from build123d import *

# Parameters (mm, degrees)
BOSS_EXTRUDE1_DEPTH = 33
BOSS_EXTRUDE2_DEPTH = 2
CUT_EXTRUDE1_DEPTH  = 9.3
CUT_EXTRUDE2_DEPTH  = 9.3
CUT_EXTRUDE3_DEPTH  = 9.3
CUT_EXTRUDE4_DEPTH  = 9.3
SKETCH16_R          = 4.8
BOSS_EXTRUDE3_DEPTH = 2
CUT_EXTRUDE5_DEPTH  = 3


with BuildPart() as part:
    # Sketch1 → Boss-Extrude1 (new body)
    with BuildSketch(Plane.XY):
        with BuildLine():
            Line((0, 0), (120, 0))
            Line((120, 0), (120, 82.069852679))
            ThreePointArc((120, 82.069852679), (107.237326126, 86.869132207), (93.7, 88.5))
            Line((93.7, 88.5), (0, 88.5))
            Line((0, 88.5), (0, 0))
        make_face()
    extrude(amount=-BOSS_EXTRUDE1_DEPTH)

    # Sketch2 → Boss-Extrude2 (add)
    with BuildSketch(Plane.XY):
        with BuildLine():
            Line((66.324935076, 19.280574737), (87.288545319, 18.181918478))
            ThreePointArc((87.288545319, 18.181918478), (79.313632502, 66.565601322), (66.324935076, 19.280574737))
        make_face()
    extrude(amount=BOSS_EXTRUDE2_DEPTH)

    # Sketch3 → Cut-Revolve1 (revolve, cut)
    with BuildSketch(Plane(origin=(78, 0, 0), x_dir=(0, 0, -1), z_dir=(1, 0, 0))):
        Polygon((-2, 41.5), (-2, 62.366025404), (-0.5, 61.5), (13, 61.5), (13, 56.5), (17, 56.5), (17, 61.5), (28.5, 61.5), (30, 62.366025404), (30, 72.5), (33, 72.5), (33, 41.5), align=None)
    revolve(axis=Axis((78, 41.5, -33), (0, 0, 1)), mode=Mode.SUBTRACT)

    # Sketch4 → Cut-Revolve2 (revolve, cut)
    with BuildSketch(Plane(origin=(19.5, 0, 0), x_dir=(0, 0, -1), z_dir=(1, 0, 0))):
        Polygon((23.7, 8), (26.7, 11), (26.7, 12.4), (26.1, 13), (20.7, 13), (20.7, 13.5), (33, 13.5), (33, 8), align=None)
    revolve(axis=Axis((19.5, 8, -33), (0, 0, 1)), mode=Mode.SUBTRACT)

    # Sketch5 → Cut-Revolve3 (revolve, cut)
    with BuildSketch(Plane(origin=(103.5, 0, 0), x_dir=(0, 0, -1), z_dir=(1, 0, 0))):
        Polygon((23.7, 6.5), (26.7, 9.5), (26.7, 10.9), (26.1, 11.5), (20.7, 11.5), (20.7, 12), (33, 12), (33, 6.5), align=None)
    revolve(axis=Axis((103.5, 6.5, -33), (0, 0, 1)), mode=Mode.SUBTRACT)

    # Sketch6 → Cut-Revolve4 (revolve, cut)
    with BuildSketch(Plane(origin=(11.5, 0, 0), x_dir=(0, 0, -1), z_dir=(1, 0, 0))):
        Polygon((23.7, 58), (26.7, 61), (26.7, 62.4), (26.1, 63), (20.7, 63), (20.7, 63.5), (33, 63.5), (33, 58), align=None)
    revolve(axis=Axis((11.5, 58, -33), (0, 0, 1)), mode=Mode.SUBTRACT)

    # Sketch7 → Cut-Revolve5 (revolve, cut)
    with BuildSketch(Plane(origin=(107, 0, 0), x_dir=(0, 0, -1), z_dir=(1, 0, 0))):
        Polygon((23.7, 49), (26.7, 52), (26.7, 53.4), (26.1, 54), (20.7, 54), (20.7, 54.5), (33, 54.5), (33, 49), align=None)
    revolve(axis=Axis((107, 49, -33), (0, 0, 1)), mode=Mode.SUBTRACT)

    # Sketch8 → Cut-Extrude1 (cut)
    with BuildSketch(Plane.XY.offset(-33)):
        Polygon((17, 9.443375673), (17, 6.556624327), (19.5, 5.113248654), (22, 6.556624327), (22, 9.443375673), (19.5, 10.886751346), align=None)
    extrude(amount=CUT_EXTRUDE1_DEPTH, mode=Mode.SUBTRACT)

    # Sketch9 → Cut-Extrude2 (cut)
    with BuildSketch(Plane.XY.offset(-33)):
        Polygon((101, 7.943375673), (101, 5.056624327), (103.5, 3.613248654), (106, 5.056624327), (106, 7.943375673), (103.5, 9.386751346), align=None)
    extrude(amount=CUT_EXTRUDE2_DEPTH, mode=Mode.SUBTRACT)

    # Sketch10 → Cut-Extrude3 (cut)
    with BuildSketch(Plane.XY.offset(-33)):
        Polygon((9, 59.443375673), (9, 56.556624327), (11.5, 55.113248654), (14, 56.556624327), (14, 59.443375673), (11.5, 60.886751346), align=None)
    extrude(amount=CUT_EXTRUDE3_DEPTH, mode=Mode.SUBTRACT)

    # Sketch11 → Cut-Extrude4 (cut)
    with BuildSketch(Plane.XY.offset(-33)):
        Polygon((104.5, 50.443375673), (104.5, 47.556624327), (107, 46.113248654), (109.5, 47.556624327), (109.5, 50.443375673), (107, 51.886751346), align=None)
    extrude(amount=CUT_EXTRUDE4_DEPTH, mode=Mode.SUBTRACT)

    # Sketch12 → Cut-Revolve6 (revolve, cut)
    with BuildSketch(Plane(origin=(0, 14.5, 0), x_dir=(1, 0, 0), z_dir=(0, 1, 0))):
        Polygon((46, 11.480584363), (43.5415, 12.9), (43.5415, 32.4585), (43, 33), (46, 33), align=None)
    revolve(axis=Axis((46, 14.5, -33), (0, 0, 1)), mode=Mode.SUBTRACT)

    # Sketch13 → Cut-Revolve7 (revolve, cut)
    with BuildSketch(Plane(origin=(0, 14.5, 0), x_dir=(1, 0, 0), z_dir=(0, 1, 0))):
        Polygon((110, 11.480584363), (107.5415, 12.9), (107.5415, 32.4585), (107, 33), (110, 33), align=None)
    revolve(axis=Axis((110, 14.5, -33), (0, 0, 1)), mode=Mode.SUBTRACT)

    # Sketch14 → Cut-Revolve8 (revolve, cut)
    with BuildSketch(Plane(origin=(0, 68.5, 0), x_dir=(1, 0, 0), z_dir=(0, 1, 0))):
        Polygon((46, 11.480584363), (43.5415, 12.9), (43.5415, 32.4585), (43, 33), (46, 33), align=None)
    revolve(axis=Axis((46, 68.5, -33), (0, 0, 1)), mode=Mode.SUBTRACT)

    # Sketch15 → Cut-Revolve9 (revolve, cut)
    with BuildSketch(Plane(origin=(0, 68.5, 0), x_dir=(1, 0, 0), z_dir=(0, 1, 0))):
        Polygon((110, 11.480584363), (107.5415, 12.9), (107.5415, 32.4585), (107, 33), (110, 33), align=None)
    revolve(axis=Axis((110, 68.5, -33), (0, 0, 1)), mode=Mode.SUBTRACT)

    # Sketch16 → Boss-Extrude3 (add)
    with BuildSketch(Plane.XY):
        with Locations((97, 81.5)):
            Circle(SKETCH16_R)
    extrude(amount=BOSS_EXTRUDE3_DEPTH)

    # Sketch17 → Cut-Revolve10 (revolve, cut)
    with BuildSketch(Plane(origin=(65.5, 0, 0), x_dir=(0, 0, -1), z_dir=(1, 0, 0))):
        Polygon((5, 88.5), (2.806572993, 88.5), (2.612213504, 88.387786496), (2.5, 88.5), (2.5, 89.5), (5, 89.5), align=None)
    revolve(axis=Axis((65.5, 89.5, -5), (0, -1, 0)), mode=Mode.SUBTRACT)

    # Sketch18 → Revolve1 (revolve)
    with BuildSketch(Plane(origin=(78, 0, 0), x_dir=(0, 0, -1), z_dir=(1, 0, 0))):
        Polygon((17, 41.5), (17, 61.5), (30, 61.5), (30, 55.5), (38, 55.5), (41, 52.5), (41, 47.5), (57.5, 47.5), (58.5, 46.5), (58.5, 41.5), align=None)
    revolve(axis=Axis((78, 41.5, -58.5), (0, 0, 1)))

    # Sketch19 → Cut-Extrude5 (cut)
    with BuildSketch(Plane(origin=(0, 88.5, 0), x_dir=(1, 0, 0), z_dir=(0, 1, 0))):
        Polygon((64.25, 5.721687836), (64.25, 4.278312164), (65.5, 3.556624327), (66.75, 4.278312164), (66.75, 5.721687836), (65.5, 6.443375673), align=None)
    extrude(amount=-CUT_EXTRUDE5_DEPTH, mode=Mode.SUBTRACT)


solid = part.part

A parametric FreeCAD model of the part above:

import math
import FreeCAD as App
import Part
import Sketcher
from FreeCAD import Vector
Q = App.Units.Quantity


def add_polygon(sketch, points):
    """Adds a closed chain of lines whose ends are joined by coincident constraints."""
    first, n = sketch.GeometryCount, len(points)
    for a, b in zip(points, points[1:] + points[:1]):
        sketch.addGeometry(Part.LineSegment(App.Vector(*a, 0), App.Vector(*b, 0)), False)
    for i in range(n):
        sketch.addConstraint(Sketcher.Constraint("Coincident", first + i, 2, first + (i + 1) % n, 1))

doc = App.newDocument("Part")
params = doc.addObject("Spreadsheet::Sheet", "Params")
for row, (alias, value) in enumerate([
    ("sketch1_radius", "57 mm"),
    ("sketch1_width", "120 mm"),
    ("sketch1_width2", "93.7 mm"),
    ("sketch1_height", "88.5 mm"),
    ("pad1_length", "33 mm"),
    ("sketch2_radius", "25.1 mm"),
    ("pad2_length", "2 mm"),
    ("sketch3_width", "31 mm"),
    ("sketch3_width2", "5 mm"),
    ("sketch3_height", "35 mm"),
    ("sketch3_height2", "3 mm"),
    ("sketch3_height3", "4 mm"),
    ("groove_angle", "360 deg"),
    ("sketch4_width", "5.5 mm"),
    ("sketch4_width2", "0.5 mm"),
    ("sketch4_width3", "1.4 mm"),
    ("sketch4_height", "9.3 mm"),
    ("sketch4_height2", "12.3 mm"),
    ("groove2_angle", "360 deg"),
    ("sketch5_width", "5.5 mm"),
    ("sketch5_width2", "0.5 mm"),
    ("sketch5_width3", "1.4 mm"),
    ("sketch5_height", "9.3 mm"),
    ("sketch5_height2", "12.3 mm"),
    ("groove3_angle", "360 deg"),
    ("sketch6_width", "5.5 mm"),
    ("sketch6_width2", "0.5 mm"),
    ("sketch6_width3", "1.4 mm"),
    ("sketch6_height", "9.3 mm"),
    ("sketch6_height2", "12.3 mm"),
    ("groove4_angle", "360 deg"),
    ("sketch7_width", "5.5 mm"),
    ("sketch7_width2", "0.5 mm"),
    ("sketch7_width3", "1.4 mm"),
    ("sketch7_height", "9.3 mm"),
    ("sketch7_height2", "12.3 mm"),
    ("groove5_angle", "360 deg"),
    ("pocket1_length", "9.3 mm"),
    ("pocket2_length", "9.3 mm"),
    ("pocket3_length", "9.3 mm"),
    ("pocket4_length", "9.3 mm"),
    ("sketch12_width", "3 mm"),
    ("groove6_angle", "360 deg"),
    ("sketch13_width", "3 mm"),
    ("groove7_angle", "360 deg"),
    ("sketch14_width", "3 mm"),
    ("groove8_angle", "360 deg"),
    ("sketch15_width", "3 mm"),
    ("groove9_angle", "360 deg"),
    ("sketch16_diameter", "9.6 mm"),
    ("pad3_length", "2 mm"),
    ("sketch17_width", "1 mm"),
    ("sketch17_height", "2.5 mm"),
    ("groove10_angle", "360 deg"),
    ("sketch18_width", "20 mm"),
    ("sketch18_width2", "5 mm"),
    ("sketch18_width3", "6 mm"),
    ("sketch18_height", "8 mm"),
    ("sketch18_height2", "13 mm"),
    ("revolution_angle", "360 deg"),
    ("pocket5_length", "3 mm"),
], start=1):
    params.set(f"A{row}", alias)
    params.set(f"B{row}", "=" + value)
    params.setAlias(f"B{row}", alias)

body = doc.addObject("PartDesign::Body", "Body")

sketch1 = body.newObject("Sketcher::SketchObject", "Sketch")
sketch1.AttachmentSupport = (doc.getObject("XY_Plane"), [""])
sketch1.MapMode = "FlatFace"
sketch1.addGeometry(Part.LineSegment(Vector(0, 0, 0), Vector(120, 0, 0)), False)
sketch1.addGeometry(Part.LineSegment(Vector(120, 0, 0), Vector(120, 82, 0)), False)
sketch1.addGeometry(Part.ArcOfCircle(Part.Circle(Vector(94, 32, 0), Vector(0, 0, 1), 57), math.radians(63), math.radians(90)), False)
sketch1.addGeometry(Part.LineSegment(Vector(94, 88, 0), Vector(0, 88, 0)), False)
sketch1.addGeometry(Part.LineSegment(Vector(0, 88, 0), Vector(0, 0, 0)), False)
sketch1.addConstraint(Sketcher.Constraint("Coincident", 0, 2, 1, 1))
sketch1.addConstraint(Sketcher.Constraint("Coincident", 1, 2, 2, 1))
sketch1.addConstraint(Sketcher.Constraint("Tangent", 2, 2, 3, 1))
sketch1.addConstraint(Sketcher.Constraint("Coincident", 3, 2, 4, 1))
sketch1.addConstraint(Sketcher.Constraint("Coincident", 4, 2, 0, 1))
sketch1.addConstraint(Sketcher.Constraint("Horizontal", 0))
sketch1.addConstraint(Sketcher.Constraint("Vertical", 1))
sketch1.addConstraint(Sketcher.Constraint("Horizontal", 3))
sketch1.addConstraint(Sketcher.Constraint("Vertical", 4))
sketch1.addConstraint(Sketcher.Constraint("Coincident", 4, 2, -1, 1))
sketch1.addConstraint(Sketcher.Constraint("Radius", 2, 57.0))
sketch1.addConstraint(Sketcher.Constraint("DistanceX", 0, 1, 0, 2, 120.0))
sketch1.addConstraint(Sketcher.Constraint("DistanceX", 3, 2, 3, 1, 93.7))
sketch1.addConstraint(Sketcher.Constraint("DistanceY", 4, 2, 4, 1, 88.5))
sketch1.setExpression("Constraints[10]", "Params.sketch1_radius")
sketch1.setExpression("Constraints[11]", "Params.sketch1_width")
sketch1.setExpression("Constraints[12]", "Params.sketch1_width2")
sketch1.setExpression("Constraints[13]", "Params.sketch1_height")
pad1 = body.newObject("PartDesign::Pad", "Pad")
pad1.Profile = sketch1
pad1.setExpression("Length", "Params.pad1_length")
pad1.Reversed = True

sketch2 = body.newObject("Sketcher::SketchObject", "Sketch001")
sketch2.AttachmentSupport = (doc.getObject("XY_Plane"), [""])
sketch2.MapMode = "FlatFace"
sketch2.addGeometry(Part.LineSegment(Vector(66, 19, 0), Vector(87, 18, 0)), False)
sketch2.addGeometry(Part.ArcOfCircle(Part.Circle(Vector(78, 42, 0), Vector(0, 0, 1), 25), math.radians(-68), math.radians(242)), False)
sketch2.addConstraint(Sketcher.Constraint("Coincident", 0, 1, 1, 2))
sketch2.addConstraint(Sketcher.Constraint("Coincident", 1, 1, 0, 2))
sketch2.addConstraint(Sketcher.Constraint("Radius", 1, 25.1))
sketch2.addConstraint(Sketcher.Constraint("Angle", 0, Q("-3 deg")))
sketch2.addConstraint(Sketcher.Constraint("DistanceX", -1, 1, 1, 3, 78.0))
sketch2.addConstraint(Sketcher.Constraint("DistanceY", -1, 1, 1, 3, 41.5))
sketch2.addConstraint(Sketcher.Constraint("Distance", 0, 20.99238))
sketch2.setExpression("Constraints[2]", "Params.sketch2_radius")
pad2 = body.newObject("PartDesign::Pad", "Pad001")
pad2.Profile = sketch2
pad2.setExpression("Length", "Params.pad2_length")

sketch3 = body.newObject("Sketcher::SketchObject", "Sketch002")
sketch3.AttachmentSupport = (doc.getObject("YZ_Plane"), [""])
sketch3.MapMode = "FlatFace"
sketch3.AttachmentOffset = App.Placement(Vector(0, 0, 78), App.Rotation())
add_polygon(sketch3, [(62.4, 2), (41.5, 2), (41.5, -33), (72.5, -33), (72.5, -30), (62.4, -30), (61.5, -28.5), (61.5, -17), (56.5, -17), (56.5, -13), (61.5, -13), (61.5, 0.5)])
sketch3.addGeometry(Part.LineSegment(Vector(41.5, -33, 0), Vector(41.5, 2, 0)), True)
sketch3.addConstraint(Sketcher.Constraint("Horizontal", 0))
sketch3.addConstraint(Sketcher.Constraint("Vertical", 1))
sketch3.addConstraint(Sketcher.Constraint("Horizontal", 2))
sketch3.addConstraint(Sketcher.Constraint("Vertical", 3))
sketch3.addConstraint(Sketcher.Constraint("Horizontal", 4))
sketch3.addConstraint(Sketcher.Constraint("Vertical", 6))
sketch3.addConstraint(Sketcher.Constraint("Horizontal", 7))
sketch3.addConstraint(Sketcher.Constraint("Vertical", 8))
sketch3.addConstraint(Sketcher.Constraint("Horizontal", 9))
sketch3.addConstraint(Sketcher.Constraint("Vertical", 10))
sketch3.addConstraint(Sketcher.Constraint("Vertical", 12))
sketch3.addConstraint(Sketcher.Constraint("Coincident", 12, 1, 1, 2))
sketch3.addConstraint(Sketcher.Constraint("Horizontal", 11, 2, 12, 2))
sketch3.addConstraint(Sketcher.Constraint("Vertical", 6, 2, 9, 2))
sketch3.addConstraint(Sketcher.Constraint("Vertical", 4, 2, 11, 2))
sketch3.addConstraint(Sketcher.Constraint("Equal", 5, 11))
sketch3.addConstraint(Sketcher.Constraint("DistanceX", 2, 1, 2, 2, 31.0))
sketch3.addConstraint(Sketcher.Constraint("DistanceX", 7, 2, 7, 1, 5.0))
sketch3.addConstraint(Sketcher.Constraint("DistanceY", 1, 2, 1, 1, 35.0))
sketch3.addConstraint(Sketcher.Constraint("DistanceY", 3, 1, 3, 2, 3.0))
sketch3.addConstraint(Sketcher.Constraint("DistanceY", 8, 1, 8, 2, 4.0))
sketch3.addConstraint(Sketcher.Constraint("Angle", 5, Q("120 deg")))
sketch3.addConstraint(Sketcher.Constraint("DistanceY", 6, 1, 6, 2, 11.5))
sketch3.addConstraint(Sketcher.Constraint("DistanceY", 10, 1, 10, 2, 13.5))
sketch3.addConstraint(Sketcher.Constraint("DistanceY", -1, 1, 0, 2, 2.0))
sketch3.addConstraint(Sketcher.Constraint("DistanceX", 5, 2, 3, 2, 11.0))
sketch3.addConstraint(Sketcher.Constraint("DistanceX", -1, 1, 0, 2, 41.5))
sketch3.setExpression("Constraints[28]", "Params.sketch3_width")
sketch3.setExpression("Constraints[29]", "Params.sketch3_width2")
sketch3.setExpression("Constraints[30]", "Params.sketch3_height")
sketch3.setExpression("Constraints[31]", "Params.sketch3_height2")
sketch3.setExpression("Constraints[32]", "Params.sketch3_height3")
groove = body.newObject("PartDesign::Groove", "Groove")
groove.Profile = sketch3
groove.ReferenceAxis = (sketch3, ["Axis0"])
groove.setExpression("Angle", "Params.groove_angle")

sketch4 = body.newObject("Sketcher::SketchObject", "Sketch003")
sketch4.AttachmentSupport = (doc.getObject("YZ_Plane"), [""])
sketch4.MapMode = "FlatFace"
sketch4.AttachmentOffset = App.Placement(Vector(0, 0, 19.5), App.Rotation())
add_polygon(sketch4, [(11, -26.7), (8, -23.7), (8, -33), (13.5, -33), (13.5, -20.7), (13, -20.7), (13, -26.1), (12.4, -26.7)])
sketch4.addGeometry(Part.LineSegment(Vector(8, -33, 0), Vector(8, -20.7, 0)), True)
sketch4.addConstraint(Sketcher.Constraint("Vertical", 1))
sketch4.addConstraint(Sketcher.Constraint("Horizontal", 2))
sketch4.addConstraint(Sketcher.Constraint("Vertical", 3))
sketch4.addConstraint(Sketcher.Constraint("Horizontal", 4))
sketch4.addConstraint(Sketcher.Constraint("Vertical", 5))
sketch4.addConstraint(Sketcher.Constraint("Horizontal", 7))
sketch4.addConstraint(Sketcher.Constraint("Vertical", 8))
sketch4.addConstraint(Sketcher.Constraint("Coincident", 8, 1, 1, 2))
sketch4.addConstraint(Sketcher.Constraint("Perpendicular", 0, 6))
sketch4.addConstraint(Sketcher.Constraint("Horizontal", 4, 2, 8, 2))
sketch4.addConstraint(Sketcher.Constraint("Angle", 0, Q("135 deg")))
sketch4.addConstraint(Sketcher.Constraint("DistanceX", 2, 1, 2, 2, 5.5))
sketch4.addConstraint(Sketcher.Constraint("DistanceX", 4, 2, 4, 1, 0.5))
sketch4.addConstraint(Sketcher.Constraint("DistanceX", 7, 2, 7, 1, 1.4))
sketch4.addConstraint(Sketcher.Constraint("DistanceY", 1, 2, 1, 1, 9.3))
sketch4.addConstraint(Sketcher.Constraint("DistanceY", 3, 1, 3, 2, 12.3))
sketch4.addConstraint(Sketcher.Constraint("DistanceY", 5, 2, 5, 1, 5.4))
sketch4.addConstraint(Sketcher.Constraint("DistanceX", -1, 1, 0, 2, 8.0))
sketch4.addConstraint(Sketcher.Constraint("DistanceY", 1, 2, -1, 1, 33.0))
sketch4.setExpression("Constraints[19]", "Params.sketch4_width")
sketch4.setExpression("Constraints[20]", "Params.sketch4_width2")
sketch4.setExpression("Constraints[21]", "Params.sketch4_width3")
sketch4.setExpression("Constraints[22]", "Params.sketch4_height")
sketch4.setExpression("Constraints[23]", "Params.sketch4_height2")
groove2 = body.newObject("PartDesign::Groove", "Groove001")
groove2.Profile = sketch4
groove2.ReferenceAxis = (sketch4, ["Axis0"])
groove2.setExpression("Angle", "Params.groove2_angle")

sketch5 = body.newObject("Sketcher::SketchObject", "Sketch004")
sketch5.AttachmentSupport = (doc.getObject("YZ_Plane"), [""])
sketch5.MapMode = "FlatFace"
sketch5.AttachmentOffset = App.Placement(Vector(0, 0, 103.5), App.Rotation())
add_polygon(sketch5, [(9.5, -26.7), (6.5, -23.7), (6.5, -33), (12, -33), (12, -20.7), (11.5, -20.7), (11.5, -26.1), (10.9, -26.7)])
sketch5.addGeometry(Part.LineSegment(Vector(6.5, -33, 0), Vector(6.5, -20.7, 0)), True)
sketch5.addConstraint(Sketcher.Constraint("Vertical", 1))
sketch5.addConstraint(Sketcher.Constraint("Horizontal", 2))
sketch5.addConstraint(Sketcher.Constraint("Vertical", 3))
sketch5.addConstraint(Sketcher.Constraint("Horizontal", 4))
sketch5.addConstraint(Sketcher.Constraint("Vertical", 5))
sketch5.addConstraint(Sketcher.Constraint("Horizontal", 7))
sketch5.addConstraint(Sketcher.Constraint("Vertical", 8))
sketch5.addConstraint(Sketcher.Constraint("Coincident", 8, 1, 1, 2))
sketch5.addConstraint(Sketcher.Constraint("Perpendicular", 0, 6))
sketch5.addConstraint(Sketcher.Constraint("Horizontal", 4, 2, 8, 2))
sketch5.addConstraint(Sketcher.Constraint("Angle", 0, Q("135 deg")))
sketch5.addConstraint(Sketcher.Constraint("DistanceX", 2, 1, 2, 2, 5.5))
sketch5.addConstraint(Sketcher.Constraint("DistanceX", 4, 2, 4, 1, 0.5))
sketch5.addConstraint(Sketcher.Constraint("DistanceX", 7, 2, 7, 1, 1.4))
sketch5.addConstraint(Sketcher.Constraint("DistanceY", 1, 2, 1, 1, 9.3))
sketch5.addConstraint(Sketcher.Constraint("DistanceY", 3, 1, 3, 2, 12.3))
sketch5.addConstraint(Sketcher.Constraint("DistanceY", 5, 2, 5, 1, 5.4))
sketch5.addConstraint(Sketcher.Constraint("DistanceY", 1, 2, -1, 1, 33.0))
sketch5.addConstraint(Sketcher.Constraint("DistanceX", -1, 1, 2, 2, 12.0))
sketch5.setExpression("Constraints[19]", "Params.sketch5_width")
sketch5.setExpression("Constraints[20]", "Params.sketch5_width2")
sketch5.setExpression("Constraints[21]", "Params.sketch5_width3")
sketch5.setExpression("Constraints[22]", "Params.sketch5_height")
sketch5.setExpression("Constraints[23]", "Params.sketch5_height2")
groove3 = body.newObject("PartDesign::Groove", "Groove002")
groove3.Profile = sketch5
groove3.ReferenceAxis = (sketch5, ["Axis0"])
groove3.setExpression("Angle", "Params.groove3_angle")

sketch6 = body.newObject("Sketcher::SketchObject", "Sketch005")
sketch6.AttachmentSupport = (doc.getObject("YZ_Plane"), [""])
sketch6.MapMode = "FlatFace"
sketch6.AttachmentOffset = App.Placement(Vector(0, 0, 11.5), App.Rotation())
add_polygon(sketch6, [(61, -26.7), (58, -23.7), (58, -33), (63.5, -33), (63.5, -20.7), (63, -20.7), (63, -26.1), (62.4, -26.7)])
sketch6.addGeometry(Part.LineSegment(Vector(58, -33, 0), Vector(58, -20.7, 0)), True)
sketch6.addConstraint(Sketcher.Constraint("Vertical", 1))
sketch6.addConstraint(Sketcher.Constraint("Horizontal", 2))
sketch6.addConstraint(Sketcher.Constraint("Vertical", 3))
sketch6.addConstraint(Sketcher.Constraint("Horizontal", 4))
sketch6.addConstraint(Sketcher.Constraint("Vertical", 5))
sketch6.addConstraint(Sketcher.Constraint("Horizontal", 7))
sketch6.addConstraint(Sketcher.Constraint("Vertical", 8))
sketch6.addConstraint(Sketcher.Constraint("Coincident", 8, 1, 1, 2))
sketch6.addConstraint(Sketcher.Constraint("Perpendicular", 0, 6))
sketch6.addConstraint(Sketcher.Constraint("Horizontal", 4, 2, 8, 2))
sketch6.addConstraint(Sketcher.Constraint("Angle", 0, Q("135 deg")))
sketch6.addConstraint(Sketcher.Constraint("DistanceX", 2, 1, 2, 2, 5.5))
sketch6.addConstraint(Sketcher.Constraint("DistanceX", 4, 2, 4, 1, 0.5))
sketch6.addConstraint(Sketcher.Constraint("DistanceX", 7, 2, 7, 1, 1.4))
sketch6.addConstraint(Sketcher.Constraint("DistanceY", 1, 2, 1, 1, 9.3))
sketch6.addConstraint(Sketcher.Constraint("DistanceY", 3, 1, 3, 2, 12.3))
sketch6.addConstraint(Sketcher.Constraint("DistanceY", 5, 2, 5, 1, 5.4))
sketch6.addConstraint(Sketcher.Constraint("DistanceX", -1, 1, 0, 2, 58.0))
sketch6.addConstraint(Sketcher.Constraint("DistanceY", 1, 2, -1, 1, 33.0))
sketch6.setExpression("Constraints[19]", "Params.sketch6_width")
sketch6.setExpression("Constraints[20]", "Params.sketch6_width2")
sketch6.setExpression("Constraints[21]", "Params.sketch6_width3")
sketch6.setExpression("Constraints[22]", "Params.sketch6_height")
sketch6.setExpression("Constraints[23]", "Params.sketch6_height2")
groove4 = body.newObject("PartDesign::Groove", "Groove003")
groove4.Profile = sketch6
groove4.ReferenceAxis = (sketch6, ["Axis0"])
groove4.setExpression("Angle", "Params.groove4_angle")

sketch7 = body.newObject("Sketcher::SketchObject", "Sketch006")
sketch7.AttachmentSupport = (doc.getObject("YZ_Plane"), [""])
sketch7.MapMode = "FlatFace"
sketch7.AttachmentOffset = App.Placement(Vector(0, 0, 107), App.Rotation())
add_polygon(sketch7, [(52, -26.7), (49, -23.7), (49, -33), (54.5, -33), (54.5, -20.7), (54, -20.7), (54, -26.1), (53.4, -26.7)])
sketch7.addGeometry(Part.LineSegment(Vector(49, -33, 0), Vector(49, -20.7, 0)), True)
sketch7.addConstraint(Sketcher.Constraint("Vertical", 1))
sketch7.addConstraint(Sketcher.Constraint("Horizontal", 2))
sketch7.addConstraint(Sketcher.Constraint("Vertical", 3))
sketch7.addConstraint(Sketcher.Constraint("Horizontal", 4))
sketch7.addConstraint(Sketcher.Constraint("Vertical", 5))
sketch7.addConstraint(Sketcher.Constraint("Horizontal", 7))
sketch7.addConstraint(Sketcher.Constraint("Vertical", 8))
sketch7.addConstraint(Sketcher.Constraint("Coincident", 8, 1, 1, 2))
sketch7.addConstraint(Sketcher.Constraint("Perpendicular", 0, 6))
sketch7.addConstraint(Sketcher.Constraint("Horizontal", 4, 2, 8, 2))
sketch7.addConstraint(Sketcher.Constraint("Angle", 0, Q("135 deg")))
sketch7.addConstraint(Sketcher.Constraint("DistanceX", 2, 1, 2, 2, 5.5))
sketch7.addConstraint(Sketcher.Constraint("DistanceX", 4, 2, 4, 1, 0.5))
sketch7.addConstraint(Sketcher.Constraint("DistanceX", 7, 2, 7, 1, 1.4))
sketch7.addConstraint(Sketcher.Constraint("DistanceY", 1, 2, 1, 1, 9.3))
sketch7.addConstraint(Sketcher.Constraint("DistanceY", 3, 1, 3, 2, 12.3))
sketch7.addConstraint(Sketcher.Constraint("DistanceY", 5, 2, 5, 1, 5.4))
sketch7.addConstraint(Sketcher.Constraint("DistanceX", -1, 1, 0, 2, 49.0))
sketch7.addConstraint(Sketcher.Constraint("DistanceY", 1, 2, -1, 1, 33.0))
sketch7.setExpression("Constraints[19]", "Params.sketch7_width")
sketch7.setExpression("Constraints[20]", "Params.sketch7_width2")
sketch7.setExpression("Constraints[21]", "Params.sketch7_width3")
sketch7.setExpression("Constraints[22]", "Params.sketch7_height")
sketch7.setExpression("Constraints[23]", "Params.sketch7_height2")
groove5 = body.newObject("PartDesign::Groove", "Groove004")
groove5.Profile = sketch7
groove5.ReferenceAxis = (sketch7, ["Axis0"])
groove5.setExpression("Angle", "Params.groove5_angle")

sketch8 = body.newObject("Sketcher::SketchObject", "Sketch007")
sketch8.AttachmentSupport = (doc.getObject("XY_Plane"), [""])
sketch8.MapMode = "FlatFace"
sketch8.AttachmentOffset = App.Placement(Vector(0, 0, -33), App.Rotation())
add_polygon(sketch8, [(17, 9.4), (17, 6.6), (19.5, 5.1), (22, 6.6), (22, 9.4), (19.5, 10.9)])
sketch8.addConstraint(Sketcher.Constraint("Vertical", 0))
sketch8.addConstraint(Sketcher.Constraint("Vertical", 3))
sketch8.addConstraint(Sketcher.Constraint("Parallel", 1, 4))
sketch8.addConstraint(Sketcher.Constraint("Parallel", 2, 5))
sketch8.addConstraint(Sketcher.Constraint("Horizontal", 0, 2, 2, 2))
sketch8.addConstraint(Sketcher.Constraint("Horizontal", 3, 2, 5, 2))
sketch8.addConstraint(Sketcher.Constraint("Vertical", 1, 2, 4, 2))
sketch8.addConstraint(Sketcher.Constraint("Angle", 1, Q("-30 deg")))
sketch8.addConstraint(Sketcher.Constraint("DistanceX", -1, 1, 0, 2, 17.0))
sketch8.addConstraint(Sketcher.Constraint("DistanceX", -1, 1, 2, 2, 22.0))
sketch8.addConstraint(Sketcher.Constraint("DistanceY", 0, 2, 0, 1, 2.886751))
sketch8.addConstraint(Sketcher.Constraint("DistanceY", -1, 1, 1, 2, 5.113249))
pocket1 = body.newObject("PartDesign::Pocket", "Pocket")
pocket1.Profile = sketch8
pocket1.setExpression("Length", "Params.pocket1_length")
pocket1.Reversed = True

sketch9 = body.newObject("Sketcher::SketchObject", "Sketch008")
sketch9.AttachmentSupport = (doc.getObject("XY_Plane"), [""])
sketch9.MapMode = "FlatFace"
sketch9.AttachmentOffset = App.Placement(Vector(0, 0, -33), App.Rotation())
add_polygon(sketch9, [(101, 7.9), (101, 5.1), (103.5, 3.6), (106, 5.1), (106, 7.9), (103.5, 9.4)])
sketch9.addConstraint(Sketcher.Constraint("Vertical", 0))
sketch9.addConstraint(Sketcher.Constraint("Vertical", 3))
sketch9.addConstraint(Sketcher.Constraint("Parallel", 1, 4))
sketch9.addConstraint(Sketcher.Constraint("Parallel", 2, 5))
sketch9.addConstraint(Sketcher.Constraint("Horizontal", 0, 2, 2, 2))
sketch9.addConstraint(Sketcher.Constraint("Horizontal", 3, 2, 5, 2))
sketch9.addConstraint(Sketcher.Constraint("Vertical", 1, 2, 4, 2))
sketch9.addConstraint(Sketcher.Constraint("Angle", 1, Q("-30 deg")))
sketch9.addConstraint(Sketcher.Constraint("DistanceX", -1, 1, 0, 2, 101.0))
sketch9.addConstraint(Sketcher.Constraint("DistanceX", -1, 1, 2, 2, 106.0))
sketch9.addConstraint(Sketcher.Constraint("DistanceY", 0, 2, 0, 1, 2.886751))
sketch9.addConstraint(Sketcher.Constraint("DistanceY", -1, 1, 1, 2, 3.613249))
pocket2 = body.newObject("PartDesign::Pocket", "Pocket001")
pocket2.Profile = sketch9
pocket2.setExpression("Length", "Params.pocket2_length")
pocket2.Reversed = True

sketch10 = body.newObject("Sketcher::SketchObject", "Sketch009")
sketch10.AttachmentSupport = (doc.getObject("XY_Plane"), [""])
sketch10.MapMode = "FlatFace"
sketch10.AttachmentOffset = App.Placement(Vector(0, 0, -33), App.Rotation())
add_polygon(sketch10, [(9, 59.4), (9, 56.6), (11.5, 55.1), (14, 56.6), (14, 59.4), (11.5, 60.9)])
sketch10.addConstraint(Sketcher.Constraint("Vertical", 0))
sketch10.addConstraint(Sketcher.Constraint("Vertical", 3))
sketch10.addConstraint(Sketcher.Constraint("Parallel", 1, 4))
sketch10.addConstraint(Sketcher.Constraint("Parallel", 2, 5))
sketch10.addConstraint(Sketcher.Constraint("Horizontal", 0, 2, 2, 2))
sketch10.addConstraint(Sketcher.Constraint("Horizontal", 3, 2, 5, 2))
sketch10.addConstraint(Sketcher.Constraint("Vertical", 1, 2, 4, 2))
sketch10.addConstraint(Sketcher.Constraint("Angle", 1, Q("-30 deg")))
sketch10.addConstraint(Sketcher.Constraint("DistanceX", -1, 1, 0, 2, 9.0))
sketch10.addConstraint(Sketcher.Constraint("DistanceX", -1, 1, 2, 2, 14.0))
sketch10.addConstraint(Sketcher.Constraint("DistanceY", 0, 2, 0, 1, 2.886751))
sketch10.addConstraint(Sketcher.Constraint("DistanceY", -1, 1, 1, 2, 55.113249))
pocket3 = body.newObject("PartDesign::Pocket", "Pocket002")
pocket3.Profile = sketch10
pocket3.setExpression("Length", "Params.pocket3_length")
pocket3.Reversed = True

sketch11 = body.newObject("Sketcher::SketchObject", "Sketch010")
sketch11.AttachmentSupport = (doc.getObject("XY_Plane"), [""])
sketch11.MapMode = "FlatFace"
sketch11.AttachmentOffset = App.Placement(Vector(0, 0, -33), App.Rotation())
add_polygon(sketch11, [(104.5, 50.4), (104.5, 47.6), (107, 46.1), (109.5, 47.6), (109.5, 50.4), (107, 51.9)])
sketch11.addConstraint(Sketcher.Constraint("Vertical", 0))
sketch11.addConstraint(Sketcher.Constraint("Vertical", 3))
sketch11.addConstraint(Sketcher.Constraint("Parallel", 1, 4))
sketch11.addConstraint(Sketcher.Constraint("Parallel", 2, 5))
sketch11.addConstraint(Sketcher.Constraint("Horizontal", 0, 2, 2, 2))
sketch11.addConstraint(Sketcher.Constraint("Horizontal", 3, 2, 5, 2))
sketch11.addConstraint(Sketcher.Constraint("Vertical", 1, 2, 4, 2))
sketch11.addConstraint(Sketcher.Constraint("Angle", 1, Q("-30 deg")))
sketch11.addConstraint(Sketcher.Constraint("DistanceX", -1, 1, 1, 2, 107.0))
sketch11.addConstraint(Sketcher.Constraint("DistanceX", 0, 2, 2, 2, 5.0))
sketch11.addConstraint(Sketcher.Constraint("DistanceY", 0, 2, 0, 1, 2.886751))
sketch11.addConstraint(Sketcher.Constraint("DistanceY", -1, 1, 1, 2, 46.113249))
pocket4 = body.newObject("PartDesign::Pocket", "Pocket003")
pocket4.Profile = sketch11
pocket4.setExpression("Length", "Params.pocket4_length")
pocket4.Reversed = True

sketch12 = body.newObject("Sketcher::SketchObject", "Sketch011")
sketch12.AttachmentSupport = (doc.getObject("XZ_Plane"), [""])
sketch12.MapMode = "FlatFace"
sketch12.AttachmentOffset = App.Placement(Vector(0, 0, -14.5), App.Rotation())
add_polygon(sketch12, [(43.5, -12.9), (46, -11.5), (46, -33), (43, -33), (43.5, -32.5)])
sketch12.addGeometry(Part.LineSegment(Vector(46, -33, 0), Vector(46, -11.5, 0)), True)
sketch12.addConstraint(Sketcher.Constraint("Vertical", 1))
sketch12.addConstraint(Sketcher.Constraint("Horizontal", 2))
sketch12.addConstraint(Sketcher.Constraint("Vertical", 4))
sketch12.addConstraint(Sketcher.Constraint("Vertical", 5))
sketch12.addConstraint(Sketcher.Constraint("Coincident", 5, 1, 1, 2))
sketch12.addConstraint(Sketcher.Constraint("Equal", 1, 5))
sketch12.addConstraint(Sketcher.Constraint("DistanceX", 2, 2, 2, 1, 3.0))
sketch12.addConstraint(Sketcher.Constraint("Angle", 0, Q("30 deg")))
sketch12.addConstraint(Sketcher.Constraint("Angle", 3, Q("45 deg")))
sketch12.addConstraint(Sketcher.Constraint("DistanceX", -1, 1, 0, 2, 46.0))
sketch12.addConstraint(Sketcher.Constraint("DistanceY", 1, 2, -1, 1, 33.0))
sketch12.addConstraint(Sketcher.Constraint("DistanceY", 4, 2, -1, 1, 12.9))
sketch12.addConstraint(Sketcher.Constraint("DistanceY", 4, 1, 4, 2, 19.5585))
sketch12.setExpression("Constraints[11]", "Params.sketch12_width")
groove6 = body.newObject("PartDesign::Groove", "Groove005")
groove6.Profile = sketch12
groove6.ReferenceAxis = (sketch12, ["Axis0"])
groove6.setExpression("Angle", "Params.groove6_angle")

sketch13 = body.newObject("Sketcher::SketchObject", "Sketch012")
sketch13.AttachmentSupport = (doc.getObject("XZ_Plane"), [""])
sketch13.MapMode = "FlatFace"
sketch13.AttachmentOffset = App.Placement(Vector(0, 0, -14.5), App.Rotation())
add_polygon(sketch13, [(107.5, -12.9), (110, -11.5), (110, -33), (107, -33), (107.5, -32.5)])
sketch13.addGeometry(Part.LineSegment(Vector(110, -33, 0), Vector(110, -11.5, 0)), True)
sketch13.addConstraint(Sketcher.Constraint("Vertical", 1))
sketch13.addConstraint(Sketcher.Constraint("Horizontal", 2))
sketch13.addConstraint(Sketcher.Constraint("Vertical", 4))
sketch13.addConstraint(Sketcher.Constraint("Vertical", 5))
sketch13.addConstraint(Sketcher.Constraint("Coincident", 5, 1, 1, 2))
sketch13.addConstraint(Sketcher.Constraint("Equal", 1, 5))
sketch13.addConstraint(Sketcher.Constraint("DistanceX", 2, 2, 2, 1, 3.0))
sketch13.addConstraint(Sketcher.Constraint("Angle", 0, Q("30 deg")))
sketch13.addConstraint(Sketcher.Constraint("Angle", 3, Q("45 deg")))
sketch13.addConstraint(Sketcher.Constraint("DistanceX", -1, 1, 0, 2, 110.0))
sketch13.addConstraint(Sketcher.Constraint("DistanceY", 1, 2, -1, 1, 33.0))
sketch13.addConstraint(Sketcher.Constraint("DistanceY", 4, 2, -1, 1, 12.9))
sketch13.addConstraint(Sketcher.Constraint("DistanceY", 4, 1, 4, 2, 19.5585))
sketch13.setExpression("Constraints[11]", "Params.sketch13_width")
groove7 = body.newObject("PartDesign::Groove", "Groove006")
groove7.Profile = sketch13
groove7.ReferenceAxis = (sketch13, ["Axis0"])
groove7.setExpression("Angle", "Params.groove7_angle")

sketch14 = body.newObject("Sketcher::SketchObject", "Sketch013")
sketch14.AttachmentSupport = (doc.getObject("XZ_Plane"), [""])
sketch14.MapMode = "FlatFace"
sketch14.AttachmentOffset = App.Placement(Vector(0, 0, -68.5), App.Rotation())
add_polygon(sketch14, [(43.5, -12.9), (46, -11.5), (46, -33), (43, -33), (43.5, -32.5)])
sketch14.addGeometry(Part.LineSegment(Vector(46, -33, 0), Vector(46, -11.5, 0)), True)
sketch14.addConstraint(Sketcher.Constraint("Vertical", 1))
sketch14.addConstraint(Sketcher.Constraint("Horizontal", 2))
sketch14.addConstraint(Sketcher.Constraint("Vertical", 4))
sketch14.addConstraint(Sketcher.Constraint("Vertical", 5))
sketch14.addConstraint(Sketcher.Constraint("Coincident", 5, 1, 1, 2))
sketch14.addConstraint(Sketcher.Constraint("Equal", 1, 5))
sketch14.addConstraint(Sketcher.Constraint("DistanceX", 2, 2, 2, 1, 3.0))
sketch14.addConstraint(Sketcher.Constraint("Angle", 0, Q("30 deg")))
sketch14.addConstraint(Sketcher.Constraint("Angle", 3, Q("45 deg")))
sketch14.addConstraint(Sketcher.Constraint("DistanceX", -1, 1, 0, 2, 46.0))
sketch14.addConstraint(Sketcher.Constraint("DistanceY", 1, 2, -1, 1, 33.0))
sketch14.addConstraint(Sketcher.Constraint("DistanceY", 4, 2, -1, 1, 12.9))
sketch14.addConstraint(Sketcher.Constraint("DistanceY", 4, 1, 4, 2, 19.5585))
sketch14.setExpression("Constraints[11]", "Params.sketch14_width")
groove8 = body.newObject("PartDesign::Groove", "Groove007")
groove8.Profile = sketch14
groove8.ReferenceAxis = (sketch14, ["Axis0"])
groove8.setExpression("Angle", "Params.groove8_angle")

sketch15 = body.newObject("Sketcher::SketchObject", "Sketch014")
sketch15.AttachmentSupport = (doc.getObject("XZ_Plane"), [""])
sketch15.MapMode = "FlatFace"
sketch15.AttachmentOffset = App.Placement(Vector(0, 0, -68.5), App.Rotation())
add_polygon(sketch15, [(107.5, -12.9), (110, -11.5), (110, -33), (107, -33), (107.5, -32.5)])
sketch15.addGeometry(Part.LineSegment(Vector(110, -33, 0), Vector(110, -11.5, 0)), True)
sketch15.addConstraint(Sketcher.Constraint("Vertical", 1))
sketch15.addConstraint(Sketcher.Constraint("Horizontal", 2))
sketch15.addConstraint(Sketcher.Constraint("Vertical", 4))
sketch15.addConstraint(Sketcher.Constraint("Vertical", 5))
sketch15.addConstraint(Sketcher.Constraint("Coincident", 5, 1, 1, 2))
sketch15.addConstraint(Sketcher.Constraint("Equal", 1, 5))
sketch15.addConstraint(Sketcher.Constraint("DistanceX", 2, 2, 2, 1, 3.0))
sketch15.addConstraint(Sketcher.Constraint("Angle", 0, Q("30 deg")))
sketch15.addConstraint(Sketcher.Constraint("Angle", 3, Q("45 deg")))
sketch15.addConstraint(Sketcher.Constraint("DistanceX", -1, 1, 0, 2, 110.0))
sketch15.addConstraint(Sketcher.Constraint("DistanceY", 1, 2, -1, 1, 33.0))
sketch15.addConstraint(Sketcher.Constraint("DistanceY", 4, 2, -1, 1, 12.9))
sketch15.addConstraint(Sketcher.Constraint("DistanceY", 4, 1, 4, 2, 19.5585))
sketch15.setExpression("Constraints[11]", "Params.sketch15_width")
groove9 = body.newObject("PartDesign::Groove", "Groove008")
groove9.Profile = sketch15
groove9.ReferenceAxis = (sketch15, ["Axis0"])
groove9.setExpression("Angle", "Params.groove9_angle")

sketch16 = body.newObject("Sketcher::SketchObject", "Sketch015")
sketch16.AttachmentSupport = (doc.getObject("XY_Plane"), [""])
sketch16.MapMode = "FlatFace"
sketch16.addGeometry(Part.Circle(Vector(97, 81.5, 0), Vector(0, 0, 1), 4.8), False)
sketch16.addConstraint(Sketcher.Constraint("Diameter", 0, 9.6))
sketch16.addConstraint(Sketcher.Constraint("DistanceX", -1, 1, 0, 3, 97.0))
sketch16.addConstraint(Sketcher.Constraint("DistanceY", -1, 1, 0, 3, 81.5))
sketch16.setExpression("Constraints[0]", "Params.sketch16_diameter")
pad3 = body.newObject("PartDesign::Pad", "Pad002")
pad3.Profile = sketch16
pad3.setExpression("Length", "Params.pad3_length")

sketch17 = body.newObject("Sketcher::SketchObject", "Sketch016")
sketch17.AttachmentSupport = (doc.getObject("YZ_Plane"), [""])
sketch17.MapMode = "FlatFace"
sketch17.AttachmentOffset = App.Placement(Vector(0, 0, 65.5), App.Rotation())
add_polygon(sketch17, [(88.5, -2.81), (88.5, -5), (89.5, -5), (89.5, -2.5), (88.5, -2.5), (88.39, -2.61)])
sketch17.addGeometry(Part.LineSegment(Vector(89.5, -5, 0), Vector(88.39, -5, 0)), True)
sketch17.addConstraint(Sketcher.Constraint("Vertical", 0))
sketch17.addConstraint(Sketcher.Constraint("Horizontal", 1))
sketch17.addConstraint(Sketcher.Constraint("Vertical", 2))
sketch17.addConstraint(Sketcher.Constraint("Horizontal", 3))
sketch17.addConstraint(Sketcher.Constraint("Horizontal", 6))
sketch17.addConstraint(Sketcher.Constraint("Coincident", 6, 1, 1, 2))
sketch17.addConstraint(Sketcher.Constraint("Vertical", 0, 2, 3, 2))
sketch17.addConstraint(Sketcher.Constraint("Vertical", 4, 2, 6, 2))
sketch17.addConstraint(Sketcher.Constraint("DistanceX", 1, 1, 1, 2, 1.0))
sketch17.addConstraint(Sketcher.Constraint("Angle", 4, Q("-135 deg")))
sketch17.addConstraint(Sketcher.Constraint("Angle", 5, Q("-60 deg")))
sketch17.addConstraint(Sketcher.Constraint("DistanceY", 2, 1, 2, 2, 2.5))
sketch17.addConstraint(Sketcher.Constraint("DistanceY", 0, 2, -1, 1, 5.0))
sketch17.addConstraint(Sketcher.Constraint("DistanceX", -1, 1, 0, 2, 88.5))
sketch17.addConstraint(Sketcher.Constraint("DistanceX", 6, 2, 6, 1, 1.112214))
sketch17.setExpression("Constraints[14]", "Params.sketch17_width")
sketch17.setExpression("Constraints[17]", "Params.sketch17_height")
groove10 = body.newObject("PartDesign::Groove", "Groove009")
groove10.Profile = sketch17
groove10.ReferenceAxis = (sketch17, ["Axis0"])
groove10.setExpression("Angle", "Params.groove10_angle")

sketch18 = body.newObject("Sketcher::SketchObject", "Sketch017")
sketch18.AttachmentSupport = (doc.getObject("YZ_Plane"), [""])
sketch18.MapMode = "FlatFace"
sketch18.AttachmentOffset = App.Placement(Vector(0, 0, 78), App.Rotation())
add_polygon(sketch18, [(61.5, -17), (41.5, -17), (41.5, -58.5), (46.5, -58.5), (47.5, -57.5), (47.5, -41), (52.5, -41), (55.5, -38), (55.5, -30), (61.5, -30)])
sketch18.addGeometry(Part.LineSegment(Vector(41.5, -58.5, 0), Vector(41.5, -17, 0)), True)
sketch18.addConstraint(Sketcher.Constraint("Horizontal", 0))
sketch18.addConstraint(Sketcher.Constraint("Vertical", 1))
sketch18.addConstraint(Sketcher.Constraint("Horizontal", 2))
sketch18.addConstraint(Sketcher.Constraint("Vertical", 4))
sketch18.addConstraint(Sketcher.Constraint("Horizontal", 5))
sketch18.addConstraint(Sketcher.Constraint("Vertical", 7))
sketch18.addConstraint(Sketcher.Constraint("Horizontal", 8))
sketch18.addConstraint(Sketcher.Constraint("Vertical", 9))
sketch18.addConstraint(Sketcher.Constraint("Vertical", 10))
sketch18.addConstraint(Sketcher.Constraint("Coincident", 10, 1, 1, 2))
sketch18.addConstraint(Sketcher.Constraint("Parallel", 3, 6))
sketch18.addConstraint(Sketcher.Constraint("Horizontal", 9, 2, 10, 2))
sketch18.addConstraint(Sketcher.Constraint("Equal", 2, 5))
sketch18.addConstraint(Sketcher.Constraint("DistanceX", 0, 2, 0, 1, 20.0))
sketch18.addConstraint(Sketcher.Constraint("DistanceX", 2, 1, 2, 2, 5.0))
sketch18.addConstraint(Sketcher.Constraint("DistanceX", 8, 1, 8, 2, 6.0))
sketch18.addConstraint(Sketcher.Constraint("DistanceY", 7, 1, 7, 2, 8.0))
sketch18.addConstraint(Sketcher.Constraint("DistanceY", 9, 1, 9, 2, 13.0))
sketch18.addConstraint(Sketcher.Constraint("Angle", 3, Q("45 deg")))
sketch18.addConstraint(Sketcher.Constraint("DistanceY", 1, 2, 1, 1, 41.5))
sketch18.addConstraint(Sketcher.Constraint("DistanceY", 0, 2, -1, 1, 17.0))
sketch18.addConstraint(Sketcher.Constraint("DistanceY", 4, 2, -1, 1, 41.0))
sketch18.addConstraint(Sketcher.Constraint("DistanceX", -1, 1, 0, 2, 41.5))
sketch18.setExpression("Constraints[23]", "Params.sketch18_width")
sketch18.setExpression("Constraints[24]", "Params.sketch18_width2")
sketch18.setExpression("Constraints[25]", "Params.sketch18_width3")
sketch18.setExpression("Constraints[26]", "Params.sketch18_height")
sketch18.setExpression("Constraints[27]", "Params.sketch18_height2")
revolution = body.newObject("PartDesign::Revolution", "Revolution")
revolution.Profile = sketch18
revolution.ReferenceAxis = (sketch18, ["Axis0"])
revolution.setExpression("Angle", "Params.revolution_angle")

sketch19 = body.newObject("Sketcher::SketchObject", "Sketch018")
sketch19.AttachmentSupport = (doc.getObject("XZ_Plane"), [""])
sketch19.MapMode = "FlatFace"
sketch19.AttachmentOffset = App.Placement(Vector(0, 0, -88.5), App.Rotation())
add_polygon(sketch19, [(64.2, -5.7), (64.2, -4.3), (65.5, -3.6), (66.8, -4.3), (66.8, -5.7), (65.5, -6.4)])
sketch19.addConstraint(Sketcher.Constraint("Vertical", 0))
sketch19.addConstraint(Sketcher.Constraint("Vertical", 3))
sketch19.addConstraint(Sketcher.Constraint("Parallel", 1, 4))
sketch19.addConstraint(Sketcher.Constraint("Parallel", 2, 5))
sketch19.addConstraint(Sketcher.Constraint("Horizontal", 0, 2, 2, 2))
sketch19.addConstraint(Sketcher.Constraint("Horizontal", 3, 2, 5, 2))
sketch19.addConstraint(Sketcher.Constraint("Vertical", 1, 2, 4, 2))
sketch19.addConstraint(Sketcher.Constraint("Angle", 1, Q("30 deg")))
sketch19.addConstraint(Sketcher.Constraint("DistanceX", -1, 1, 1, 2, 65.5))
sketch19.addConstraint(Sketcher.Constraint("DistanceX", 0, 2, 2, 2, 2.5))
sketch19.addConstraint(Sketcher.Constraint("DistanceY", 0, 1, 0, 2, 1.443376))
sketch19.addConstraint(Sketcher.Constraint("DistanceY", 0, 2, -1, 1, 4.278312))
pocket5 = body.newObject("PartDesign::Pocket", "Pocket004")
pocket5.Profile = sketch19
pocket5.setExpression("Length", "Params.pocket5_length")
pocket5.Reversed = True

doc.recompute()
